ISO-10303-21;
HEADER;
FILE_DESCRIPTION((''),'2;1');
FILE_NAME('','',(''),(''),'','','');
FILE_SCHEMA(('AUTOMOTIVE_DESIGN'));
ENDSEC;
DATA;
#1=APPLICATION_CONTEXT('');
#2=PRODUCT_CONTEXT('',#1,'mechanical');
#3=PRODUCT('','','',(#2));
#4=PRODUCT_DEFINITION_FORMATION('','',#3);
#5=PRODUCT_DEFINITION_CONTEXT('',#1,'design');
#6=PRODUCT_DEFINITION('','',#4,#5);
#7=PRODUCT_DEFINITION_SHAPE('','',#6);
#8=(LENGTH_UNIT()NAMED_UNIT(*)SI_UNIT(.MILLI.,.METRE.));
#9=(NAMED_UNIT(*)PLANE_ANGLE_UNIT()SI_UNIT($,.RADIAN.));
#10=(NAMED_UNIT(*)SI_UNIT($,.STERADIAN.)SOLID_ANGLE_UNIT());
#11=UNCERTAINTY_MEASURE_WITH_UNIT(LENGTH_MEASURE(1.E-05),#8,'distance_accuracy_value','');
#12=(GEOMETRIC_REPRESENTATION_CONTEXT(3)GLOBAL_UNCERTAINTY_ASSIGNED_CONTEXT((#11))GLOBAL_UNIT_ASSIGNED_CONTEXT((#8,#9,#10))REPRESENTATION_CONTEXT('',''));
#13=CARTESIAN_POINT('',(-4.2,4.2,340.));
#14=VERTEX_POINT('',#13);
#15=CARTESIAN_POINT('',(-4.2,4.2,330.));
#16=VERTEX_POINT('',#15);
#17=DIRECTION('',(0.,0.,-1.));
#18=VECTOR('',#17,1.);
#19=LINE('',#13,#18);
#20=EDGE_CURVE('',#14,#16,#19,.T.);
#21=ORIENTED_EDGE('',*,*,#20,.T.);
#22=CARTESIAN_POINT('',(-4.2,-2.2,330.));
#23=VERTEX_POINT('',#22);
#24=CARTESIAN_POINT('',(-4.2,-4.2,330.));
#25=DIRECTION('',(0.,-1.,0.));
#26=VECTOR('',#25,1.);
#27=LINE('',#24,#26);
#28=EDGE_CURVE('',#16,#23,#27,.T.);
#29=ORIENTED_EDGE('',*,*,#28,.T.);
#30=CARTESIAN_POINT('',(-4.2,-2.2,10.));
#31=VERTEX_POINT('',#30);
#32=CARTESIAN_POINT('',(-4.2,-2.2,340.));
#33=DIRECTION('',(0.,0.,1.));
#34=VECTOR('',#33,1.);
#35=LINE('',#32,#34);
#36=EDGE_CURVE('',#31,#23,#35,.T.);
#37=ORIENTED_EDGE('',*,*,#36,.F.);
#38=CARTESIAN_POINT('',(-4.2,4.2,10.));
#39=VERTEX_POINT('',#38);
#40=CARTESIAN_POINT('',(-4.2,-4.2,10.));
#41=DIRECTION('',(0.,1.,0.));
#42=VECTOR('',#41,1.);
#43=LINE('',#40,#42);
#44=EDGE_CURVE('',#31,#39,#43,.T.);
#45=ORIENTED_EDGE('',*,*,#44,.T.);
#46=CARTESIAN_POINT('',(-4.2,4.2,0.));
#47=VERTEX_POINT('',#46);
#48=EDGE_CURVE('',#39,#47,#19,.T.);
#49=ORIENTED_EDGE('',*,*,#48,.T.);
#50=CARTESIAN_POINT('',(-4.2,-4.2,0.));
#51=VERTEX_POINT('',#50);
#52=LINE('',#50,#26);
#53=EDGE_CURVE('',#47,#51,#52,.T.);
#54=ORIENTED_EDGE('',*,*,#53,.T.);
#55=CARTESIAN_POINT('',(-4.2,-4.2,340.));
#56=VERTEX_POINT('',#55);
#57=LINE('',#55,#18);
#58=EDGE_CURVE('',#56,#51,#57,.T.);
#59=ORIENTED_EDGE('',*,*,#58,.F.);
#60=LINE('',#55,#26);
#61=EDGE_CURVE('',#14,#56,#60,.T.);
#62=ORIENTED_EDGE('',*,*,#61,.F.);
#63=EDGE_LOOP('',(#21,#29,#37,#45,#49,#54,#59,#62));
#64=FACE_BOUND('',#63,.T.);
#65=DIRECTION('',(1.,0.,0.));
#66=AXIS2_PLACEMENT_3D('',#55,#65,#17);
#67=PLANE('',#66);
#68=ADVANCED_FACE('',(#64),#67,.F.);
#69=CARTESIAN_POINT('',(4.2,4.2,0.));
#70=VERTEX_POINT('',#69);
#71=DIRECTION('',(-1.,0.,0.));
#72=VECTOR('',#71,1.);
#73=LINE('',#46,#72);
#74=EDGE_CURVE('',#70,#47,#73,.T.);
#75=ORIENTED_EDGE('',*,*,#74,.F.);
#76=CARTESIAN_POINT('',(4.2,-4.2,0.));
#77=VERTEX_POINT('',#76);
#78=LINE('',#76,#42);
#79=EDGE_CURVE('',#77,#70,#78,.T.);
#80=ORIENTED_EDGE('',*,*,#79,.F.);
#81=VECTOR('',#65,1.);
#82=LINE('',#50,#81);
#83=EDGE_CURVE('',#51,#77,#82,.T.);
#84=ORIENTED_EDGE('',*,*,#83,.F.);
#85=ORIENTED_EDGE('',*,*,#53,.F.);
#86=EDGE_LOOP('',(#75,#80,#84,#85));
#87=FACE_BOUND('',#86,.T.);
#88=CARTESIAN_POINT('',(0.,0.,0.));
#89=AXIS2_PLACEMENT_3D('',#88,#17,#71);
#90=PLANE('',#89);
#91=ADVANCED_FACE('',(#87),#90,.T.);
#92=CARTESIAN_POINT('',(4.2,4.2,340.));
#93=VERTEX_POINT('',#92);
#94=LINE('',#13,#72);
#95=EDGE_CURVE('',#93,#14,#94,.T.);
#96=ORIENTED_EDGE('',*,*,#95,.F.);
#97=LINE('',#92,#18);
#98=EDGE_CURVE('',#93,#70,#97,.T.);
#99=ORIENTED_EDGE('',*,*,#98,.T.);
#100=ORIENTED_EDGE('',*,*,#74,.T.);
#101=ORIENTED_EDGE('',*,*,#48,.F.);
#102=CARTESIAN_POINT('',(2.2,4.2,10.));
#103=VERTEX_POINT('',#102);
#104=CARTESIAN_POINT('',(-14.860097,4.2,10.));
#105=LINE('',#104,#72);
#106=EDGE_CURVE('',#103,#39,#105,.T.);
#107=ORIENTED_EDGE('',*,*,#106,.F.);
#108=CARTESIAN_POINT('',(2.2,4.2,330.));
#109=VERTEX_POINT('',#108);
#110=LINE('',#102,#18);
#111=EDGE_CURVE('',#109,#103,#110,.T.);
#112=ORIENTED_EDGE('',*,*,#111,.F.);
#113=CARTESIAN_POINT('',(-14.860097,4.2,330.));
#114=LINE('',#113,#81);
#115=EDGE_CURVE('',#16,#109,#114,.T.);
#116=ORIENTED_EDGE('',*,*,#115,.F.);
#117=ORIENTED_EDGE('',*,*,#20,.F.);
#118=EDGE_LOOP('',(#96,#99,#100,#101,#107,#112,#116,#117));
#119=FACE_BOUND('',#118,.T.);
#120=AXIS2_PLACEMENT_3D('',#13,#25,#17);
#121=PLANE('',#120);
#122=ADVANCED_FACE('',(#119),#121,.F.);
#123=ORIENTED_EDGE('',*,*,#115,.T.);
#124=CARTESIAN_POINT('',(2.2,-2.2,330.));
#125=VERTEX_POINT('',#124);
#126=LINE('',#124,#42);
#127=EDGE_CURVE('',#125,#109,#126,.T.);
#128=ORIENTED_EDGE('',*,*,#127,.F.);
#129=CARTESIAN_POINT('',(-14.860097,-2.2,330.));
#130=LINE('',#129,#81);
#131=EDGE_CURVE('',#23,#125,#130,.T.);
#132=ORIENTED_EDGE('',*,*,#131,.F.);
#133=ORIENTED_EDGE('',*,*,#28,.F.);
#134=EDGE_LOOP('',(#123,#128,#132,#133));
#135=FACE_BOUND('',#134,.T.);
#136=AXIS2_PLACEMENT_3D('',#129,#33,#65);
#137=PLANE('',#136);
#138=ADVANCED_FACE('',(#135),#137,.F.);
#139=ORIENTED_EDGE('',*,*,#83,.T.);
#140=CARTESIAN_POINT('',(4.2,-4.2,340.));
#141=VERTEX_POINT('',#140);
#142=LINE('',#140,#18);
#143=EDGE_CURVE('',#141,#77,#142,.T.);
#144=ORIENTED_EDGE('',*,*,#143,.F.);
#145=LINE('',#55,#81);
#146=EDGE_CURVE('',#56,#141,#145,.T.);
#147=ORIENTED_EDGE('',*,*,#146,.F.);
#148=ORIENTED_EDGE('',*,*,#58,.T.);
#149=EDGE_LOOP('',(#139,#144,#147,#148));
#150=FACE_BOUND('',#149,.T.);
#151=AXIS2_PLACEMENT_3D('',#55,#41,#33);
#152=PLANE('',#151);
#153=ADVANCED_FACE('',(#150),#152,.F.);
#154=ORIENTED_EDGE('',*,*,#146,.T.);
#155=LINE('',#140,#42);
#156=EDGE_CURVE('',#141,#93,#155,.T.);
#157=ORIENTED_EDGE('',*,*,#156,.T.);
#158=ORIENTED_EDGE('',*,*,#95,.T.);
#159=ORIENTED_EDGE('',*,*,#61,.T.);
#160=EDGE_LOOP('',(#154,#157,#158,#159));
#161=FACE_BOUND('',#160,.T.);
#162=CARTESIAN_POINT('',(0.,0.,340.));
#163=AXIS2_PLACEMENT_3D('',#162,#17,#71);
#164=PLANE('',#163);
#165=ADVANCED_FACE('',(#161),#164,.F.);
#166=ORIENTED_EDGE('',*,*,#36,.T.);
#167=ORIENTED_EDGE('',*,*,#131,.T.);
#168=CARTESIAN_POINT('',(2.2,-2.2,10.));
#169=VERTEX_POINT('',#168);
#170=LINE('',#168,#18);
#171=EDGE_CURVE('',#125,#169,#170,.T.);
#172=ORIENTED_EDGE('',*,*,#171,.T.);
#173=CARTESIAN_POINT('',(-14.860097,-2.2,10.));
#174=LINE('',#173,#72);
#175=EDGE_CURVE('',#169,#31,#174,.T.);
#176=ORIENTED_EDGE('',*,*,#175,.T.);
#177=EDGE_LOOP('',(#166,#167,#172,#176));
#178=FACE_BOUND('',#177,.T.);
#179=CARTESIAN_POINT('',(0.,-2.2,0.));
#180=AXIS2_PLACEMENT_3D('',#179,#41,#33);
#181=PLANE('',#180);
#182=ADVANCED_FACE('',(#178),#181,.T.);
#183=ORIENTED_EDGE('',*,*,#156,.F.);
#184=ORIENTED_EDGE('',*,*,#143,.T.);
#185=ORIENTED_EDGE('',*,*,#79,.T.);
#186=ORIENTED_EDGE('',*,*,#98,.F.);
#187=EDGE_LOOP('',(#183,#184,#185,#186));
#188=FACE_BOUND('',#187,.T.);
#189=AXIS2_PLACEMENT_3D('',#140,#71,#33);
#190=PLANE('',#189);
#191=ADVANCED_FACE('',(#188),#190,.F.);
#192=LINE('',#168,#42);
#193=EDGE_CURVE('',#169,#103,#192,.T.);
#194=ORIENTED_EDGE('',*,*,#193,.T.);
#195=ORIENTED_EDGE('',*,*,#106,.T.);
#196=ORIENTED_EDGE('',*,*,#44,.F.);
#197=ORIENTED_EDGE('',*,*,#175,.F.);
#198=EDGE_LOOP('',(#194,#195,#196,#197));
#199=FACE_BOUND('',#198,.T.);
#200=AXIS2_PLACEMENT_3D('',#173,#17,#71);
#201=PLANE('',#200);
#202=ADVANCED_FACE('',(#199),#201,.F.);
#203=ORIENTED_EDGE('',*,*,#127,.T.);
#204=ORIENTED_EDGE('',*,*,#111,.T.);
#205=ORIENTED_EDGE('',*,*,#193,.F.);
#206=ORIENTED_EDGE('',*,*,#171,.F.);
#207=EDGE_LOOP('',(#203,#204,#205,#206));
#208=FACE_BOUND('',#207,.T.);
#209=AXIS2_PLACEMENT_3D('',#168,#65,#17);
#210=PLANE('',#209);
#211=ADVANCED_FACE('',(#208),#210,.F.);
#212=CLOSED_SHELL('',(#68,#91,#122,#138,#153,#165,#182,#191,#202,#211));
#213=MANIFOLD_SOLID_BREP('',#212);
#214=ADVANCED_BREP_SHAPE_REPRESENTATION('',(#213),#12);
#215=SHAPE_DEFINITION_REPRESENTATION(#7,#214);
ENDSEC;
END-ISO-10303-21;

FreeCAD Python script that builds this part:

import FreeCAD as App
import Part
import Sketcher
Q = App.Units.Quantity


def add_polygon(sketch, points):
    """Adds a closed chain of lines whose ends are joined by coincident constraints."""
    first, n = sketch.GeometryCount, len(points)
    for a, b in zip(points, points[1:] + points[:1]):
        sketch.addGeometry(Part.LineSegment(App.Vector(*a, 0), App.Vector(*b, 0)), False)
    for i in range(n):
        sketch.addConstraint(Sketcher.Constraint("Coincident", first + i, 2, first + (i + 1) % n, 1))

doc = App.newDocument("Part")
params = doc.addObject("Spreadsheet::Sheet", "Params")
for row, (alias, value) in enumerate([
    ("sketch1_width", "8.4 mm"),
    ("pad1_length", "340 mm"),
    ("sketch2_height", "320 mm"),
    ("pocket1_length", "6.4 mm"),
], start=1):
    params.set(f"A{row}", alias)
    params.set(f"B{row}", "=" + value)
    params.setAlias(f"B{row}", alias)

body = doc.addObject("PartDesign::Body", "Body")

# Sketch on XY plane
sketch1 = body.newObject("Sketcher::SketchObject", "Sketch")
sketch1.AttachmentSupport = (doc.getObject("XY_Plane"), [""])
sketch1.MapMode = "FlatFace"
add_polygon(sketch1, [(-4, 4), (-4, -4), (4, -4), (4, 4)])  # lines 0-3
sketch1.addConstraint([
    Sketcher.Constraint("Vertical", 0),
    Sketcher.Constraint("Horizontal", 1),
    Sketcher.Constraint("Vertical", 2),
    Sketcher.Constraint("Horizontal", 3),
    Sketcher.Constraint("Symmetric", 0, 2, 2, 2, -1, 1),
    Sketcher.Constraint("Equal", 3, 0),
    Sketcher.Constraint("DistanceX", 1, 1, 1, 2, Q("8.4 mm")),
])
sketch1.setExpression("Constraints[10]", "Params.sketch1_width")
pad1 = body.newObject("PartDesign::Pad", "Pad")
pad1.Profile = sketch1
pad1.setExpression("Length", "Params.pad1_length")

# Sketch on XZ plane
sketch2 = body.newObject("Sketcher::SketchObject", "Sketch001")
sketch2.AttachmentSupport = (doc.getObject("XZ_Plane"), [""])
sketch2.MapMode = "FlatFace"
sketch2.AttachmentOffset = App.Placement(App.Vector(0, 0, -4.2), App.Rotation())
add_polygon(sketch2, [(-15, 10), (-15, 330), (2, 330), (2, 10)])  # lines 0-3
sketch2.addConstraint([
    Sketcher.Constraint("Vertical", 0),
    Sketcher.Constraint("Horizontal", 1),
    Sketcher.Constraint("Vertical", 2),
    Sketcher.Constraint("Horizontal", 3),
    Sketcher.Constraint("DistanceY", 0, 1, 0, 2, Q("320 mm")),
    Sketcher.Constraint("DistanceY", -1, 1, 0, 2, Q("330 mm")),
    Sketcher.Constraint("DistanceX", -1, 1, 1, 2, Q("2.2 mm")),
    Sketcher.Constraint("DistanceX", 1, 1, 1, 2, Q("17.060097 mm")),
])
sketch2.setExpression("Constraints[8]", "Params.sketch2_height")
pocket1 = body.newObject("PartDesign::Pocket", "Pocket")
pocket1.Profile = sketch2
pocket1.setExpression("Length", "Params.pocket1_length")
pocket1.Reversed = True

doc.recompute()
